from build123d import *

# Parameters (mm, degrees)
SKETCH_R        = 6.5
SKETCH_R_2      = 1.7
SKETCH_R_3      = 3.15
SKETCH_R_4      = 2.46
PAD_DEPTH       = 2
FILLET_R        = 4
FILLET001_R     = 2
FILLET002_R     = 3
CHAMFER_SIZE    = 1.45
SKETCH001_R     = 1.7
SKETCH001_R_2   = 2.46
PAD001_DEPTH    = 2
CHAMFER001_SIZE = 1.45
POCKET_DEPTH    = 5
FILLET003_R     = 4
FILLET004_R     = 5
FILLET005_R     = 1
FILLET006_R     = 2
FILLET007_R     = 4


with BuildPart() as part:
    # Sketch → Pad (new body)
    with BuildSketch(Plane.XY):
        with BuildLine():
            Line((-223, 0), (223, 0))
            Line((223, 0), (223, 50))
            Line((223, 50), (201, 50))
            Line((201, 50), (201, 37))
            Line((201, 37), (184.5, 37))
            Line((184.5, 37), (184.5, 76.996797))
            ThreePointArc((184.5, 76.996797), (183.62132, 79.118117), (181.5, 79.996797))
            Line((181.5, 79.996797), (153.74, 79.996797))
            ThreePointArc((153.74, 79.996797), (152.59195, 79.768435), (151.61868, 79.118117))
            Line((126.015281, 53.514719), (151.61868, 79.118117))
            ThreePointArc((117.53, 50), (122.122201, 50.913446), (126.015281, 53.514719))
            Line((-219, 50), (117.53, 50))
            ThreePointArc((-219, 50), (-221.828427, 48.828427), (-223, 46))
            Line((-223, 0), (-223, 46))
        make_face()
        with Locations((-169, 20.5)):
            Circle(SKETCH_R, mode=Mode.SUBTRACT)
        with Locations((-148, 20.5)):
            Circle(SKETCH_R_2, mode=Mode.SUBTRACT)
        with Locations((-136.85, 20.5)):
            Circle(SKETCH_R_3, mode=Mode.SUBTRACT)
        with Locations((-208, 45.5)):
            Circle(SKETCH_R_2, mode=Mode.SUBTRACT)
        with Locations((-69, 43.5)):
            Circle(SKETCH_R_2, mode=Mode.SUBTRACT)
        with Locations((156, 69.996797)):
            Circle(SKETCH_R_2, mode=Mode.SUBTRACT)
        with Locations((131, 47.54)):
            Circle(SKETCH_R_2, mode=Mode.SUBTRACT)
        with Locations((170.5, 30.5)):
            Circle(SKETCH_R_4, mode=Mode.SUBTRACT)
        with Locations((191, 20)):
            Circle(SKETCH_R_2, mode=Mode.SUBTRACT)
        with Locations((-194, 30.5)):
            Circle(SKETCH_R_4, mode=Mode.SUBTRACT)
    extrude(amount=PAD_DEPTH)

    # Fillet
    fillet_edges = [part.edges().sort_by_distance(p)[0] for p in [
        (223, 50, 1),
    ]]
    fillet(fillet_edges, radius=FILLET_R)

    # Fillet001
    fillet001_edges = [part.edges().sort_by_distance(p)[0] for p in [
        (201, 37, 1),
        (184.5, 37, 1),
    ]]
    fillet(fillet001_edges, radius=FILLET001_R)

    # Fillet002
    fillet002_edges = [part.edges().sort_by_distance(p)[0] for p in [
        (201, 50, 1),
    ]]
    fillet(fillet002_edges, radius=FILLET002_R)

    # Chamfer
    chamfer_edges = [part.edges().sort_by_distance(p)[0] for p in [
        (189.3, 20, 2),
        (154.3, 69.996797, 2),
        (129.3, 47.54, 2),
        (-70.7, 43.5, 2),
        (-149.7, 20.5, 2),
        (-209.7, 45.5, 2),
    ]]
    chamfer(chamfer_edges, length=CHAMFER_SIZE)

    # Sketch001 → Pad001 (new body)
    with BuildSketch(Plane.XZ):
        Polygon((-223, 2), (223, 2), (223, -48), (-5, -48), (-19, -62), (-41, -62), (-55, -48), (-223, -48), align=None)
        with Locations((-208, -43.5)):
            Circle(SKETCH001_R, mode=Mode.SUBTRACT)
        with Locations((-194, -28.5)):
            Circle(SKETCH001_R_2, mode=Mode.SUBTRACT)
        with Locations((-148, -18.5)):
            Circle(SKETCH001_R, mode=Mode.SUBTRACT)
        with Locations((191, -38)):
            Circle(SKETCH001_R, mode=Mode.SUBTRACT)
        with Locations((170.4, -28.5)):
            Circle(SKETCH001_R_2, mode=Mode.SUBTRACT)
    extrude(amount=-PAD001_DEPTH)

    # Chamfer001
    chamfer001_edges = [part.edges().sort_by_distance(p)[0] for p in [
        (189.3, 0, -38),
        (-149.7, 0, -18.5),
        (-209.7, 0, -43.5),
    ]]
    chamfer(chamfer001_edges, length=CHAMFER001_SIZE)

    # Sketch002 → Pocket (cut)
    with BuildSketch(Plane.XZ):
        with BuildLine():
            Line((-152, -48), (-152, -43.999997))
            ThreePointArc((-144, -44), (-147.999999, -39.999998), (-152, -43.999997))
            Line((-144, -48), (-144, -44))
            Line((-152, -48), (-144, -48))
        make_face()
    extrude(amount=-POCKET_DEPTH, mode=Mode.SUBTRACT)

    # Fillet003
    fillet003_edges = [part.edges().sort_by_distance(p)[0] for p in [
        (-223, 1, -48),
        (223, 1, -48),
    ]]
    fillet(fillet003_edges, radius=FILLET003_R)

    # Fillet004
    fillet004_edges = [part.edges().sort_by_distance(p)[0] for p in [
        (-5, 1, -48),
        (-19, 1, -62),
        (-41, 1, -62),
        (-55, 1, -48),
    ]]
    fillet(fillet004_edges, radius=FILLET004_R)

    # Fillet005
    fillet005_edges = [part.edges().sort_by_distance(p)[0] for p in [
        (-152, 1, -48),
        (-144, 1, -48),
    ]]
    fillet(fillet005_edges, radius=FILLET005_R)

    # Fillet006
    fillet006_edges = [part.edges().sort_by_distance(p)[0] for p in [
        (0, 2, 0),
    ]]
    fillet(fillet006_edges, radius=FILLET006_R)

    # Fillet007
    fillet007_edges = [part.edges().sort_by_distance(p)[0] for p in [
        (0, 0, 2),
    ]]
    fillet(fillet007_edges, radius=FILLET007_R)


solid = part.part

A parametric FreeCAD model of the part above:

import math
import FreeCAD as App
import Part
import Sketcher

V = App.Vector
Q = App.Units.Quantity


def edges_at(feature, points):
    """Names of the edges that pass closest to the given points."""
    edges = feature.Shape.Edges
    near = lambda p: min(range(len(edges)), key=lambda i: edges[i].distToShape(Part.Vertex(*p))[0])
    return sorted({f"Edge{near(p) + 1}" for p in points})


def add_polygon(sketch, points):
    """Adds a closed chain of lines whose ends are joined by coincident constraints."""
    first, n = sketch.GeometryCount, len(points)
    for a, b in zip(points, points[1:] + points[:1]):
        sketch.addGeometry(Part.LineSegment(App.Vector(*a, 0), App.Vector(*b, 0)), False)
    for i in range(n):
        sketch.addConstraint(Sketcher.Constraint("Coincident", first + i, 2, first + (i + 1) % n, 1))

doc = App.newDocument("Part")
body = doc.addObject("PartDesign::Body", "Body")

sketch1 = body.newObject("Sketcher::SketchObject", "Sketch")
sketch1.AttachmentSupport = (doc.getObject("XY_Plane"), [""])
sketch1.MapMode = "FlatFace"
sketch1.addGeometry(Part.LineSegment(V(-223, 0, 0), V(223, 0, 0)), False)
sketch1.addGeometry(Part.LineSegment(V(223, 0, 0), V(223, 50, 0)), False)
sketch1.addGeometry(Part.LineSegment(V(223, 50, 0), V(201, 50, 0)), False)
sketch1.addGeometry(Part.LineSegment(V(201, 50, 0), V(201, 37, 0)), False)
sketch1.addGeometry(Part.LineSegment(V(201, 37, 0), V(184.5, 37, 0)), False)
sketch1.addGeometry(Part.LineSegment(V(184.5, 37, 0), V(184.5, 76.996797, 0)), False)
sketch1.addGeometry(Part.ArcOfCircle(Part.Circle(V(181.499999, 76.996796, 0), V(0, 0, 1), 3.000001), math.radians(0.000022), math.radians(89.999978)), False)
sketch1.addGeometry(Part.LineSegment(V(181.5, 79.996797, 0), V(153.74, 79.996797, 0)), False)
sketch1.addGeometry(Part.ArcOfCircle(Part.Circle(V(153.740003, 76.996792, 0), V(0, 0, 1), 3.000005), math.radians(90.000052), math.radians(134.999971)), False)
sketch1.addGeometry(Part.LineSegment(V(151.61868, 79.118117, 0), V(126.015281, 53.514719, 0)), False)
sketch1.addGeometry(Part.ArcOfCircle(Part.Circle(V(117.529999, 62.000002, 0), V(0, 0, 1), 12.000002), math.radians(-89.999993), math.radians(-45.000001)), False)
sketch1.addGeometry(Part.LineSegment(V(117.53, 50, 0), V(-219, 50, 0)), False)
sketch1.addGeometry(Part.ArcOfCircle(Part.Circle(V(-219, 46, 0), V(0, 0, 1), 4), math.radians(90.000006), math.radians(179.999994)), False)
sketch1.addGeometry(Part.LineSegment(V(-223, 46, 0), V(-223, 0, 0)), False)
sketch1.addGeometry(Part.Circle(V(-169, 20.5, 0), V(0, 0, 1), 6.5), False)
sketch1.addGeometry(Part.Circle(V(-148, 20.5, 0), V(0, 0, 1), 1.7), False)
sketch1.addGeometry(Part.Circle(V(-136.85, 20.5, 0), V(0, 0, 1), 3.15), False)
sketch1.addGeometry(Part.Circle(V(-194, 30.5, 0), V(0, 0, 1), 2.46), False)
sketch1.addGeometry(Part.Circle(V(191, 20, 0), V(0, 0, 1), 1.7), False)
sketch1.addGeometry(Part.Circle(V(170.5, 30.5, 0), V(0, 0, 1), 2.46), False)
sketch1.addGeometry(Part.Circle(V(-208, 45.5, 0), V(0, 0, 1), 1.7), False)
sketch1.addGeometry(Part.Circle(V(-69, 43.5, 0), V(0, 0, 1), 1.7), False)
sketch1.addGeometry(Part.Circle(V(131, 47.54, 0), V(0, 0, 1), 1.7), False)
sketch1.addGeometry(Part.Circle(V(156, 69.996797, 0), V(0, 0, 1), 1.7), False)
sketch1.addConstraint(Sketcher.Constraint("Coincident", 0, 2, 1, 1))
sketch1.addConstraint(Sketcher.Constraint("Coincident", 1, 2, 2, 1))
sketch1.addConstraint(Sketcher.Constraint("Coincident", 2, 2, 3, 1))
sketch1.addConstraint(Sketcher.Constraint("Coincident", 3, 2, 4, 1))
sketch1.addConstraint(Sketcher.Constraint("Coincident", 4, 2, 5, 1))
sketch1.addConstraint(Sketcher.Constraint("Tangent", 5, 2, 6, 1))
sketch1.addConstraint(Sketcher.Constraint("Tangent", 6, 2, 7, 1))
sketch1.addConstraint(Sketcher.Constraint("Tangent", 7, 2, 8, 1))
sketch1.addConstraint(Sketcher.Constraint("Tangent", 8, 2, 9, 1))
sketch1.addConstraint(Sketcher.Constraint("Tangent", 9, 2, 10, 2))
sketch1.addConstraint(Sketcher.Constraint("Tangent", 10, 1, 11, 1))
sketch1.addConstraint(Sketcher.Constraint("Tangent", 11, 2, 12, 1))
sketch1.addConstraint(Sketcher.Constraint("Tangent", 12, 2, 13, 1))
sketch1.addConstraint(Sketcher.Constraint("Coincident", 13, 2, 0, 1))
sketch1.addConstraint(Sketcher.Constraint("Horizontal", 0))
sketch1.addConstraint(Sketcher.Constraint("Vertical", 1))
sketch1.addConstraint(Sketcher.Constraint("Horizontal", 2))
sketch1.addConstraint(Sketcher.Constraint("Vertical", 3))
sketch1.addConstraint(Sketcher.Constraint("Horizontal", 4))
sketch1.addConstraint(Sketcher.Constraint("Vertical", 5))
sketch1.addConstraint(Sketcher.Constraint("Horizontal", 7))
sketch1.addConstraint(Sketcher.Constraint("Horizontal", 11))
sketch1.addConstraint(Sketcher.Constraint("Vertical", 13))
sketch1.addConstraint(Sketcher.Constraint("Equal", 15, 18))
sketch1.addConstraint(Sketcher.Constraint("Equal", 17, 19))
sketch1.addConstraint(Sketcher.Constraint("Equal", 18, 20))
sketch1.addConstraint(Sketcher.Constraint("Equal", 20, 21))
sketch1.addConstraint(Sketcher.Constraint("Equal", 21, 22))
sketch1.addConstraint(Sketcher.Constraint("Equal", 22, 23))
sketch1.addConstraint(Sketcher.Constraint("Symmetric", 0, 2, 13, 2, -1, 1))
sketch1.addConstraint(Sketcher.Constraint("Horizontal", 14, 3, 15, 3))
sketch1.addConstraint(Sketcher.Constraint("Horizontal", 15, 3, 16, 3))
sketch1.addConstraint(Sketcher.Constraint("Horizontal", 17, 3, 19, 3))
sketch1.addConstraint(Sketcher.Constraint("Horizontal", 2, 2, 10, 1))
sketch1.addConstraint(Sketcher.Constraint("Diameter", 14, 13.0))
sketch1.addConstraint(Sketcher.Constraint("Radius", 6, 3.000001))
sketch1.addConstraint(Sketcher.Constraint("Radius", 10, 12.000002))
sketch1.addConstraint(Sketcher.Constraint("Radius", 12, 4.0))
sketch1.addConstraint(Sketcher.Constraint("Diameter", 15, 3.4))
sketch1.addConstraint(Sketcher.Constraint("Diameter", 16, 6.3))
sketch1.addConstraint(Sketcher.Constraint("Diameter", 17, 4.92))
sketch1.addConstraint(Sketcher.Constraint("DistanceX", 0, 1, 0, 2, 446.0))
sketch1.addConstraint(Sketcher.Constraint("DistanceX", 2, 2, 2, 1, 22.0))
sketch1.addConstraint(Sketcher.Constraint("DistanceY", 1, 1, 1, 2, 50.0))
sketch1.addConstraint(Sketcher.Constraint("DistanceY", 3, 2, 3, 1, 13.0))
sketch1.addConstraint(Sketcher.Constraint("Angle", 9, Q("-135.000001 deg")))
sketch1.addConstraint(Sketcher.Constraint("DistanceX", 4, 2, 4, 1, 16.5))
sketch1.addConstraint(Sketcher.Constraint("DistanceX", 14, 3, -1, 1, 169.0))
sketch1.addConstraint(Sketcher.Constraint("DistanceX", 15, 3, -1, 1, 148.0))
sketch1.addConstraint(Sketcher.Constraint("DistanceX", 17, 3, -1, 1, 194.0))
sketch1.addConstraint(Sketcher.Constraint("DistanceX", -1, 1, 18, 3, 191.0))
sketch1.addConstraint(Sketcher.Constraint("DistanceY", -1, 1, 18, 3, 20.0))
sketch1.addConstraint(Sketcher.Constraint("DistanceX", 20, 3, -1, 1, 208.0))
sketch1.addConstraint(Sketcher.Constraint("DistanceX", 21, 3, -1, 1, 69.0))
sketch1.addConstraint(Sketcher.Constraint("DistanceX", -1, 1, 22, 3, 131.0))
sketch1.addConstraint(Sketcher.Constraint("DistanceX", -1, 1, 23, 3, 156.0))
sketch1.addConstraint(Sketcher.Constraint("DistanceY", 14, 3, 17, 3, 10.0))
sketch1.addConstraint(Sketcher.Constraint("DistanceX", 19, 3, 6, 3, 10.999999))
sketch1.addConstraint(Sketcher.Constraint("DistanceY", 17, 3, 20, 3, 15.0))
sketch1.addConstraint(Sketcher.Constraint("DistanceY", 16, 3, 21, 3, 23.0))
sketch1.addConstraint(Sketcher.Constraint("DistanceY", 23, 3, 6, 3, 6.999999))
sketch1.addConstraint(Sketcher.Constraint("DistanceX", 7, 2, 7, 1, 27.76))
sketch1.addConstraint(Sketcher.Constraint("DistanceX", 11, 2, 11, 1, 336.53))
sketch1.addConstraint(Sketcher.Constraint("DistanceY", -1, 1, 14, 3, 20.5))
sketch1.addConstraint(Sketcher.Constraint("DistanceX", 16, 3, -1, 1, 136.85))
sketch1.addConstraint(Sketcher.Constraint("DistanceY", -1, 1, 22, 3, 47.54))
sketch1.addConstraint(Sketcher.Constraint("Radius", 8, 3.000005))
pad1 = body.newObject("PartDesign::Pad", "Pad")
pad1.Profile = sketch1
pad1.Length = 2
doc.recompute()

fillet = body.newObject("PartDesign::Fillet", "Fillet")
fillet.Base = (pad1, edges_at(pad1, [(223, 50, 1)]))
fillet.Radius = 4
doc.recompute()

fillet2 = body.newObject("PartDesign::Fillet", "Fillet001")
fillet2.Base = (fillet, edges_at(fillet, [(201, 37, 1), (184.5, 37, 1)]))
fillet2.Radius = 2
doc.recompute()

fillet3 = body.newObject("PartDesign::Fillet", "Fillet002")
fillet3.Base = (fillet2, edges_at(fillet2, [(201, 50, 1)]))
fillet3.Radius = 3
doc.recompute()

chamfer = body.newObject("PartDesign::Chamfer", "Chamfer")
chamfer.Base = (fillet3, edges_at(fillet3, [
    (189.3, 20, 2),
    (154.3, 69.997, 2),
    (129.3, 47.54, 2),
    (-70.7, 43.5, 2),
    (-149.7, 20.5, 2),
    (-209.7, 45.5, 2),
]))
chamfer.Size = 1.45

sketch2 = body.newObject("Sketcher::SketchObject", "Sketch001")
sketch2.AttachmentSupport = (doc.getObject("XZ_Plane"), [""])
sketch2.MapMode = "FlatFace"
add_polygon(sketch2, [(223, 2), (-223, 2), (-223, -48), (-55, -48), (-41, -62), (-19, -62), (-5, -48), (223, -48)])
sketch2.addGeometry(Part.Circle(V(191, -38, 0), V(0, 0, 1), 1.7), False)
sketch2.addGeometry(Part.Circle(V(-208, -43.5, 0), V(0, 0, 1), 1.7), False)
sketch2.addGeometry(Part.Circle(V(170.4, -28.5, 0), V(0, 0, 1), 2.46), False)
sketch2.addGeometry(Part.Circle(V(-194, -28.5, 0), V(0, 0, 1), 2.46), False)
sketch2.addGeometry(Part.Circle(V(-148, -18.5, 0), V(0, 0, 1), 1.7), False)
sketch2.addConstraint(Sketcher.Constraint("Horizontal", 0))
sketch2.addConstraint(Sketcher.Constraint("Vertical", 1))
sketch2.addConstraint(Sketcher.Constraint("Horizontal", 2))
sketch2.addConstraint(Sketcher.Constraint("Horizontal", 4))
sketch2.addConstraint(Sketcher.Constraint("Horizontal", 6))
sketch2.addConstraint(Sketcher.Constraint("Vertical", 7))
sketch2.addConstraint(Sketcher.Constraint("Equal", 8, 9))
sketch2.addConstraint(Sketcher.Constraint("Equal", 10, 11))
sketch2.addConstraint(Sketcher.Constraint("Equal", 9, 12))
sketch2.addConstraint(Sketcher.Constraint("Symmetric", 1, 2, 6, 2, -2))
sketch2.addConstraint(Sketcher.Constraint("Perpendicular", 3, 5))
sketch2.addConstraint(Sketcher.Constraint("Horizontal", 10, 3, 11, 3))
sketch2.addConstraint(Sketcher.Constraint("Equal", 3, 5))
sketch2.addConstraint(Sketcher.Constraint("Diameter", 8, 3.4))
sketch2.addConstraint(Sketcher.Constraint("Diameter", 10, 4.92))
sketch2.addConstraint(Sketcher.Constraint("DistanceX", 0, 2, 0, 1, 446.0))
sketch2.addConstraint(Sketcher.Constraint("DistanceX", 2, 1, 2, 2, 168.0))
sketch2.addConstraint(Sketcher.Constraint("DistanceX", 4, 1, 4, 2, 22.0))
sketch2.addConstraint(Sketcher.Constraint("DistanceX", 6, 1, 6, 2, 228.0))
sketch2.addConstraint(Sketcher.Constraint("DistanceY", 1, 2, 1, 1, 50.0))
sketch2.addConstraint(Sketcher.Constraint("DistanceX", -1, 1, 8, 3, 191.0))
sketch2.addConstraint(Sketcher.Constraint("DistanceY", 8, 3, -1, 1, 38.0))
sketch2.addConstraint(Sketcher.Constraint("DistanceX", 9, 3, -1, 1, 208.0))
sketch2.addConstraint(Sketcher.Constraint("DistanceX", 11, 3, -1, 1, 194.0))
sketch2.addConstraint(Sketcher.Constraint("DistanceX", 12, 3, -1, 1, 148.0))
sketch2.addConstraint(Sketcher.Constraint("DistanceY", -1, 1, 0, 2, 2.0))
sketch2.addConstraint(Sketcher.Constraint("DistanceY", 9, 3, 10, 3, 15.0))
sketch2.addConstraint(Sketcher.Constraint("DistanceY", 11, 3, 12, 3, 10.0))
sketch2.addConstraint(Sketcher.Constraint("DistanceY", 9, 3, -1, 1, 43.5))
sketch2.addConstraint(Sketcher.Constraint("DistanceX", -1, 1, 10, 3, 170.4))
pad2 = body.newObject("PartDesign::Pad", "Pad001")
pad2.Profile = sketch2
pad2.Length = 2
pad2.Reversed = True
doc.recompute()

chamfer2 = body.newObject("PartDesign::Chamfer", "Chamfer001")
chamfer2.Base = (pad2, edges_at(pad2, [(189.3, 0, -38), (-149.7, 0, -18.5), (-209.7, 0, -43.5)]))
chamfer2.Size = 1.45

sketch3 = body.newObject("Sketcher::SketchObject", "Sketch002")
sketch3.AttachmentSupport = (doc.getObject("XZ_Plane"), [""])
sketch3.MapMode = "FlatFace"
sketch3.addGeometry(Part.LineSegment(V(-152, -43.999997, 0), V(-152, -48, 0)), False)
sketch3.addGeometry(Part.LineSegment(V(-152, -48, 0), V(-144, -48, 0)), False)
sketch3.addGeometry(Part.LineSegment(V(-144, -48, 0), V(-144, -44, 0)), False)
sketch3.addGeometry(Part.ArcOfCircle(Part.Circle(V(-148, -43.999998, 0), V(0, 0, 1), 4), math.radians(-0.000029), math.radians(179.999986)), False)
sketch3.addConstraint(Sketcher.Constraint("Coincident", 0, 2, 1, 1))
sketch3.addConstraint(Sketcher.Constraint("Coincident", 1, 2, 2, 1))
sketch3.addConstraint(Sketcher.Constraint("Tangent", 2, 2, 3, 1))
sketch3.addConstraint(Sketcher.Constraint("Tangent", 3, 2, 0, 1))
sketch3.addConstraint(Sketcher.Constraint("Vertical", 0))
sketch3.addConstraint(Sketcher.Constraint("Horizontal", 1))
sketch3.addConstraint(Sketcher.Constraint("Vertical", 2))
sketch3.addConstraint(Sketcher.Constraint("Radius", 3, 4.0))
sketch3.addConstraint(Sketcher.Constraint("DistanceY", 2, 1, 2, 2, 4.0))
sketch3.addConstraint(Sketcher.Constraint("DistanceX", 3, 3, -1, 1, 148.0))
sketch3.addConstraint(Sketcher.Constraint("DistanceY", 0, 2, -1, 1, 48.0))
pocket1 = body.newObject("PartDesign::Pocket", "Pocket")
pocket1.Profile = sketch3
pocket1.Length = 5
doc.recompute()

fillet4 = body.newObject("PartDesign::Fillet", "Fillet003")
fillet4.Base = (pocket1, edges_at(pocket1, [(-223, 1, -48), (223, 1, -48)]))
fillet4.Radius = 4
doc.recompute()

fillet5 = body.newObject("PartDesign::Fillet", "Fillet004")
fillet5.Base = (fillet4, edges_at(fillet4, [
    (-5, 1, -48),
    (-19, 1, -62),
    (-41, 1, -62),
    (-55, 1, -48),
]))
fillet5.Radius = 5
doc.recompute()

fillet6 = body.newObject("PartDesign::Fillet", "Fillet005")
fillet6.Base = (fillet5, edges_at(fillet5, [(-152, 1, -48), (-144, 1, -48)]))
fillet6.Radius = 1
doc.recompute()

fillet7 = body.newObject("PartDesign::Fillet", "Fillet006")
fillet7.Base = (fillet6, edges_at(fillet6, [(0, 2, 0)]))
fillet7.Radius = 2
doc.recompute()

fillet8 = body.newObject("PartDesign::Fillet", "Fillet007")
fillet8.Base = (fillet7, edges_at(fillet7, [(0, 0, 2)]))
fillet8.Radius = 4

doc.recompute()
